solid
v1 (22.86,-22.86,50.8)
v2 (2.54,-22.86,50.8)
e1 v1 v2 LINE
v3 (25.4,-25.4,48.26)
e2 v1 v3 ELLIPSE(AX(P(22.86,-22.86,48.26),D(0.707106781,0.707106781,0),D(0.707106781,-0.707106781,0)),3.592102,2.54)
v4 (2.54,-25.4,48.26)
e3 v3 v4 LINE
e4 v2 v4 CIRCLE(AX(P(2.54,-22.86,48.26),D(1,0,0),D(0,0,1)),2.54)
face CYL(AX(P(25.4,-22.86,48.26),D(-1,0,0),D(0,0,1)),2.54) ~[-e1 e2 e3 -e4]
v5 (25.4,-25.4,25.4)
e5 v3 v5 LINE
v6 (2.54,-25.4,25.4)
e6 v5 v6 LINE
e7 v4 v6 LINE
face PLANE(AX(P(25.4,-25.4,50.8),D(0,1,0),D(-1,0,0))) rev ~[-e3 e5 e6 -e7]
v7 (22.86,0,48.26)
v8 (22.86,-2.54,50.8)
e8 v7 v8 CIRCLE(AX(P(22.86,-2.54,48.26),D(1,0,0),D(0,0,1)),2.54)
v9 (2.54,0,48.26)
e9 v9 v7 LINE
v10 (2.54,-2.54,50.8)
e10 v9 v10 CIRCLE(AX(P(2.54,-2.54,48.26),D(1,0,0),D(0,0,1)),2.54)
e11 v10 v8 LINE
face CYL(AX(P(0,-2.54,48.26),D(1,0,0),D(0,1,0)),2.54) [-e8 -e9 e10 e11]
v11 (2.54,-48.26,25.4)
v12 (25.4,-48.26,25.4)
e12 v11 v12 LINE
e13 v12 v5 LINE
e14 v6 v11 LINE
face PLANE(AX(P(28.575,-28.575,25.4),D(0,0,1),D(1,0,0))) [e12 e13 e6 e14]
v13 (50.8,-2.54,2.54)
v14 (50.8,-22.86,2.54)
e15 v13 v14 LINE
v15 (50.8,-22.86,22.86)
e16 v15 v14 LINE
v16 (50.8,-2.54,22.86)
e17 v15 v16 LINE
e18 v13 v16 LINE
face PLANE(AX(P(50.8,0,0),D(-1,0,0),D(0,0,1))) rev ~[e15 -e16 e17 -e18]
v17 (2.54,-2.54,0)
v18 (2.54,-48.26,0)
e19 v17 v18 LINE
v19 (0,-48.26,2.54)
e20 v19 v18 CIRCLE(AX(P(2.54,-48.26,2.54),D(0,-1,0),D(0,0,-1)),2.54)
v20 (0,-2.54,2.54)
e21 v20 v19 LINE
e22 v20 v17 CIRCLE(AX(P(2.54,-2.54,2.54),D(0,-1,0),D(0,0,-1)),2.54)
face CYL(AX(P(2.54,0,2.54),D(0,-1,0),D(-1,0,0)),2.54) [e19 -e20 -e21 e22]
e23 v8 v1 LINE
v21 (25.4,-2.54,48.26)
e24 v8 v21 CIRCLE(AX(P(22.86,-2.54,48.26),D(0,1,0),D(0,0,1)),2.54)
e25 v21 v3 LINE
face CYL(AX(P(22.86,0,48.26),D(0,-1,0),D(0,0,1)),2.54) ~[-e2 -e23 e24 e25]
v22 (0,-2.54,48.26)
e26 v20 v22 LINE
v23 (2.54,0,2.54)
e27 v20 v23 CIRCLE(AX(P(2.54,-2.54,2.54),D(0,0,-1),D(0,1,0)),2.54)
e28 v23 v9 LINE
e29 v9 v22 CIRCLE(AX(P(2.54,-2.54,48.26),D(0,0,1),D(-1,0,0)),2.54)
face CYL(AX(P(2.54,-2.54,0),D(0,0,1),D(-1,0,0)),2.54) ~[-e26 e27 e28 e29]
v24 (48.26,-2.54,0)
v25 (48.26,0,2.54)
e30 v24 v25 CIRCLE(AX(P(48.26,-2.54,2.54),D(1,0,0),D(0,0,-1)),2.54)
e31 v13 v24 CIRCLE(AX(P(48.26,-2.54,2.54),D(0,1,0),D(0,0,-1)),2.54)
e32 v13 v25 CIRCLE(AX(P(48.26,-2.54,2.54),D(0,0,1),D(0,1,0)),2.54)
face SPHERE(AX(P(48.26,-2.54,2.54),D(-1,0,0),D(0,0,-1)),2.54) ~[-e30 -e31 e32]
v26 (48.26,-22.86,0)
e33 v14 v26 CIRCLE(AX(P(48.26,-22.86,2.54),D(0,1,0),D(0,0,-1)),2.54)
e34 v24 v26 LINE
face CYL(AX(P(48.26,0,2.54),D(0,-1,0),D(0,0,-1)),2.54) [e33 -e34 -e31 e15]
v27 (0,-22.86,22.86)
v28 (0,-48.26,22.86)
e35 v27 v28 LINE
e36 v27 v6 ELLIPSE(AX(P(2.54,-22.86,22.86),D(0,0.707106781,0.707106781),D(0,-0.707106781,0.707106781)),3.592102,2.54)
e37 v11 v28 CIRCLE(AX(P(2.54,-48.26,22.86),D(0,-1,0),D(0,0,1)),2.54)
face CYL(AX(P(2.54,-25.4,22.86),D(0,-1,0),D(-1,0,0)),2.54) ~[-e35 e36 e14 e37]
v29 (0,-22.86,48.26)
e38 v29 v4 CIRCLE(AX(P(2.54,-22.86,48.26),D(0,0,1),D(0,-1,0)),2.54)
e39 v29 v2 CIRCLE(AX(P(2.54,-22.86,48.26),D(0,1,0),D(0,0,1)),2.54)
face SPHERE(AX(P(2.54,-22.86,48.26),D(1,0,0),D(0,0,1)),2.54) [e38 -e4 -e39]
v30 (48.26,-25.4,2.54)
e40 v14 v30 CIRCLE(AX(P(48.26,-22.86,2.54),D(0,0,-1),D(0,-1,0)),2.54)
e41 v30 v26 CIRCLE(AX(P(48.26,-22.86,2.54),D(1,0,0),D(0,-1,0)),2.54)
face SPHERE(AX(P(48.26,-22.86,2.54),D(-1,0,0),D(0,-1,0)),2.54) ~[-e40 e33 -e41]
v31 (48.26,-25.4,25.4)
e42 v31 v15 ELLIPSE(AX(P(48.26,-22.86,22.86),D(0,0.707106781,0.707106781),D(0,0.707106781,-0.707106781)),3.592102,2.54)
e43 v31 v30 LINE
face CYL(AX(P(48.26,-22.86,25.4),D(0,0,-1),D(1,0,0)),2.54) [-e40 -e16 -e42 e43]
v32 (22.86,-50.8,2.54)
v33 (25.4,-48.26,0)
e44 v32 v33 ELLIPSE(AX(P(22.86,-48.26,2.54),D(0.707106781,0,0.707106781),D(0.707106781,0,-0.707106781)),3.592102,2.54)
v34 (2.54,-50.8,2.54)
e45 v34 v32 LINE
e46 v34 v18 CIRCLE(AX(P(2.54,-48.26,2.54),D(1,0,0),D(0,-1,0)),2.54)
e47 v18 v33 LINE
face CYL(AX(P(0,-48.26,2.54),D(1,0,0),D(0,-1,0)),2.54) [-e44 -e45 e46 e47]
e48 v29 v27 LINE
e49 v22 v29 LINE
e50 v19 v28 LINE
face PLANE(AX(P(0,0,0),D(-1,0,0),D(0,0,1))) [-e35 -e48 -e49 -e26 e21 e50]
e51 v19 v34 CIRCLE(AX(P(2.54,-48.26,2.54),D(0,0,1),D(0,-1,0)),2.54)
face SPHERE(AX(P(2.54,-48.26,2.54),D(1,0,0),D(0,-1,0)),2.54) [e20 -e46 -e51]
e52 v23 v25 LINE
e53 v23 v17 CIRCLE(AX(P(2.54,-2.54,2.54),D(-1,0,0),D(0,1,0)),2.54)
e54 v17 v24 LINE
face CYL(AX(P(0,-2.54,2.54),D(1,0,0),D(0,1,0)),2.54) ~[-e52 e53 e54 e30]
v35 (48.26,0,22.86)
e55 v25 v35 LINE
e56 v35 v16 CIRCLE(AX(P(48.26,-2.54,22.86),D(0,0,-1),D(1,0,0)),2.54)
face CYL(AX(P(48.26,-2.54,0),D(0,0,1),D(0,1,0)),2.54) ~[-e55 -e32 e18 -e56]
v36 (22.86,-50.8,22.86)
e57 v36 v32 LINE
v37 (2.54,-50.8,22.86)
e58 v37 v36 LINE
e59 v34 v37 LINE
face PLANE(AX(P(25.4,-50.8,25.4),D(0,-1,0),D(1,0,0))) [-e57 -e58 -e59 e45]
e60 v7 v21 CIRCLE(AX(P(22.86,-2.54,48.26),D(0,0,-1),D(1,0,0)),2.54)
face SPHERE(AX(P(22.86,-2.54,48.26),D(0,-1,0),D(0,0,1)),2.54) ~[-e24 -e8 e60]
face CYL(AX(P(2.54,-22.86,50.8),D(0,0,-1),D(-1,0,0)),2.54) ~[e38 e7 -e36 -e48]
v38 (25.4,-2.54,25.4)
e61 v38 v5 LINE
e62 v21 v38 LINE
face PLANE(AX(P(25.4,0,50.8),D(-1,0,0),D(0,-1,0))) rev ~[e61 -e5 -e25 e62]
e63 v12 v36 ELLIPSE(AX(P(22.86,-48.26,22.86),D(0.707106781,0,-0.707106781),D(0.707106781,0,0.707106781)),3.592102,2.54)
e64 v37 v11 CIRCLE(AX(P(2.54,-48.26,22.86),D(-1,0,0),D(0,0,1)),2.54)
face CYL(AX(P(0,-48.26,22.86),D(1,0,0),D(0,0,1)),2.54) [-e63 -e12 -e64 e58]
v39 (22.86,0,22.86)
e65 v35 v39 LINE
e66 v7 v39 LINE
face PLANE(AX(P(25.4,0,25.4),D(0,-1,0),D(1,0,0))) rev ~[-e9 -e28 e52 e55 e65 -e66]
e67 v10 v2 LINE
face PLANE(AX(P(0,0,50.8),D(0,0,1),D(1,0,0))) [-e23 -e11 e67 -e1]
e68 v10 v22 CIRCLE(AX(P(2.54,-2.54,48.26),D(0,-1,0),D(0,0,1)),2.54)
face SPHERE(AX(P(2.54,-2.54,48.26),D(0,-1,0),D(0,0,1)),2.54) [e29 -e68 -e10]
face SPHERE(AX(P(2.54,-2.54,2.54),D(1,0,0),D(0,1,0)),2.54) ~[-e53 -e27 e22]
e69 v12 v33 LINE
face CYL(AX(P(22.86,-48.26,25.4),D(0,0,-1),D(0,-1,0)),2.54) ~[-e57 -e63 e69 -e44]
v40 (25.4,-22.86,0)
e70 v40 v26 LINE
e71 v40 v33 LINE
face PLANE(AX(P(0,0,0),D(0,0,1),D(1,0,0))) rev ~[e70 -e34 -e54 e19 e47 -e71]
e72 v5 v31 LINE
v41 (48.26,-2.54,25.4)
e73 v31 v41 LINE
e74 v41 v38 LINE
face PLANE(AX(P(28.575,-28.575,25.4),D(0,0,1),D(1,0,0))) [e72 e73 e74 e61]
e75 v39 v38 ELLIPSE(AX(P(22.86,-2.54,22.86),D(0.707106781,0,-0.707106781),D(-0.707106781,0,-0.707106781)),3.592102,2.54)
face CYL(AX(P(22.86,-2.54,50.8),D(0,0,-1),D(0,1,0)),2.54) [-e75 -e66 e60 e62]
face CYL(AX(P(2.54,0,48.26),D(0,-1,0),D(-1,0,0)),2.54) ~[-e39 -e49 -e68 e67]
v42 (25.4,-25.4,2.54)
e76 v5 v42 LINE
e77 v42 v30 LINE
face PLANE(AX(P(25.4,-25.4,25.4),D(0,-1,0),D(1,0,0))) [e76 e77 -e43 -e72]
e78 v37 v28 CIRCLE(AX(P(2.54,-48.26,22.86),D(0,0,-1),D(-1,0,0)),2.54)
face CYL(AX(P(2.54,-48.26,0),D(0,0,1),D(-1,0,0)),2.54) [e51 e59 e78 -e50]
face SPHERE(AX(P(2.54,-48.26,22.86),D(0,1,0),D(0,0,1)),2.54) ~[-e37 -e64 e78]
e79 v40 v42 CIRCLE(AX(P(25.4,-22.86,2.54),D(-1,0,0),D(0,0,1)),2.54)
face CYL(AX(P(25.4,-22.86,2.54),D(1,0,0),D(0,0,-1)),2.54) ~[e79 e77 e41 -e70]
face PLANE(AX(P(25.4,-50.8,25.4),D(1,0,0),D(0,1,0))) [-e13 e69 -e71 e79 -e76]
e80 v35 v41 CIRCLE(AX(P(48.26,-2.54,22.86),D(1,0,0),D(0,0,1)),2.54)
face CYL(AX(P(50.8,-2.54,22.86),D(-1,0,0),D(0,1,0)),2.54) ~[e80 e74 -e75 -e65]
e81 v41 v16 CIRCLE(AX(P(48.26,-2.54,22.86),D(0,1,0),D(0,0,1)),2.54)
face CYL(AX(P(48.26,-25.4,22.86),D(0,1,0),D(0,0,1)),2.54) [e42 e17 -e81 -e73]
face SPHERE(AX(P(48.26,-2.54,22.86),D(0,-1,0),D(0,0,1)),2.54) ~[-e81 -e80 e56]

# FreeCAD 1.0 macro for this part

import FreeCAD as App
import Part
import Sketcher
from FreeCAD import Vector
Q = App.Units.Quantity


def edges_at(feature, points):
    """Names of the edges that pass closest to the given points."""
    edges = feature.Shape.Edges
    near = lambda p: min(range(len(edges)), key=lambda i: edges[i].distToShape(Part.Vertex(*p))[0])
    return sorted({f"Edge{near(p) + 1}" for p in points})


def add_polygon(sketch, points):
    """Adds a closed chain of lines whose ends are joined by coincident constraints."""
    first, n = sketch.GeometryCount, len(points)
    for a, b in zip(points, points[1:] + points[:1]):
        sketch.addGeometry(Part.LineSegment(App.Vector(*a, 0), App.Vector(*b, 0)), False)
    for i in range(n):
        sketch.addConstraint(Sketcher.Constraint("Coincident", first + i, 2, first + (i + 1) % n, 1))

doc = App.newDocument("Part")
params = doc.addObject("Spreadsheet::Sheet", "Params")
for row, (alias, value) in enumerate([
    ("sketch1_width", "2 in"),
    ("pad1_length", "2 in"),
    ("sketch2_width", "1 in"),
    ("pocket1_length", "1 in"),
    ("sketch3_width", "1 in"),
    ("pocket2_length", "1 in"),
    ("fillet_radius", "0.1 in"),
], start=1):
    params.set(f"A{row}", alias)
    params.set(f"B{row}", "=" + value)
    params.setAlias(f"B{row}", alias)

body = doc.addObject("PartDesign::Body", "Body")

# Sketch on XZ plane
sketch1 = doc.addObject("Sketcher::SketchObject", "Sketch")
body.addObject(sketch1)
sketch1.AttachmentSupport = (doc.XZ_Plane, [""])
sketch1.MapMode = "FlatFace"
add_polygon(sketch1, [(0, 51), (0, 0), (51, 0), (51, 51)])  # lines 0-3
sketch1.addConstraint(Sketcher.Constraint("Vertical", 0))
sketch1.addConstraint(Sketcher.Constraint("Horizontal", 1))
sketch1.addConstraint(Sketcher.Constraint("Vertical", 2))
sketch1.addConstraint(Sketcher.Constraint("Horizontal", 3))
sketch1.addConstraint(Sketcher.Constraint("Coincident", 0, 2, -1, 1))
sketch1.addConstraint(Sketcher.Constraint("Equal", 3, 0))
sketch1.addConstraint(Sketcher.Constraint("DistanceX", 1, 1, 1, 2, Q("2 in")))
sketch1.setExpression("Constraints[10]", "Params.sketch1_width")
pad1 = doc.addObject("PartDesign::Pad", "Pad")
body.addObject(pad1)
pad1.Profile = sketch1
pad1.setExpression("Length", "Params.pad1_length")

# Sketch on XY plane
sketch2 = doc.addObject("Sketcher::SketchObject", "Sketch001")
body.addObject(sketch2)
sketch2.AttachmentSupport = (doc.XY_Plane, [""])
sketch2.MapMode = "FlatFace"
sketch2.AttachmentOffset = App.Placement(Vector(0, 0, 2 * 25.4), App.Rotation())
add_polygon(sketch2, [(51, 0), (25, 0), (25, -25), (0, -25), (0, -51), (51, -51)])  # lines 0-5
sketch2.addConstraint(Sketcher.Constraint("Horizontal", 0))
sketch2.addConstraint(Sketcher.Constraint("Vertical", 1))
sketch2.addConstraint(Sketcher.Constraint("Horizontal", 2))
sketch2.addConstraint(Sketcher.Constraint("Vertical", 3))
sketch2.addConstraint(Sketcher.Constraint("Horizontal", 4))
sketch2.addConstraint(Sketcher.Constraint("Vertical", 5))
sketch2.addConstraint(Sketcher.Constraint("PointOnObject", 0, 2, -1))
sketch2.addConstraint(Sketcher.Constraint("PointOnObject", 2, 2, -2))
sketch2.addConstraint(Sketcher.Constraint("Equal", 0, 2))
sketch2.addConstraint(Sketcher.Constraint("Equal", 2, 1))
sketch2.addConstraint(Sketcher.Constraint("Equal", 1, 3))
sketch2.addConstraint(Sketcher.Constraint("DistanceX", 0, 2, 0, 1, Q("1 in")))
sketch2.setExpression("Constraints[17]", "Params.sketch2_width")
pocket1 = doc.addObject("PartDesign::Pocket", "Pocket")
body.addObject(pocket1)
pocket1.Profile = sketch2
pocket1.setExpression("Length", "Params.pocket1_length")

# Sketch on XY plane
sketch3 = doc.addObject("Sketcher::SketchObject", "Sketch002")
body.addObject(sketch3)
sketch3.AttachmentSupport = (doc.XY_Plane, [""])
sketch3.MapMode = "FlatFace"
sketch3.AttachmentOffset = App.Placement(Vector(0, 0, 1 * 25.4), App.Rotation())
add_polygon(sketch3, [(25, -25), (25, -51), (51, -51), (51, -25)])  # lines 0-3
sketch3.addConstraint(Sketcher.Constraint("Vertical", 0))
sketch3.addConstraint(Sketcher.Constraint("Horizontal", 1))
sketch3.addConstraint(Sketcher.Constraint("Vertical", 2))
sketch3.addConstraint(Sketcher.Constraint("Horizontal", 3))
sketch3.addConstraint(Sketcher.Constraint("Equal", 3, 0))
sketch3.addConstraint(Sketcher.Constraint("DistanceX", 1, 1, 1, 2, Q("1 in")))
sketch3.addConstraint(Sketcher.Constraint("DistanceX", -1, 1, 0, 2, Q("1 in")))
sketch3.addConstraint(Sketcher.Constraint("DistanceY", 0, 2, -1, 1, Q("2 in")))
sketch3.setExpression("Constraints[9]", "Params.sketch3_width")
pocket2 = doc.addObject("PartDesign::Pocket", "Pocket001")
body.addObject(pocket2)
pocket2.Profile = sketch3
pocket2.setExpression("Length", "Params.pocket2_length")
doc.recompute()

fillet = doc.addObject("PartDesign::Fillet", "Fillet")
body.addObject(fillet)
fillet.Base = (pocket2, edges_at(pocket2, [
    (50.8, -12.7, 25.4),
    (0, -38.1, 25.4),
    (25.4, -12.7, 50.8),
    (12.7, -25.4, 50.8),
    (0, -12.7, 50.8),
    (12.7, 0, 50.8),
    (38.1, 0, 25.4),
    (25.4, 0, 38.1),
    (12.7, -50.8, 25.4),
    (12.7, -50.8, 0),
    (38.1, -25.4, 0),
    (50.8, -25.4, 12.7),
    (25.4, -50.8, 12.7),
    (0, -50.8, 12.7),
    (25.4, 0, 0),
    (50.8, -12.7, 0),
    (0, 0, 25.4),
    (0, -25.4, 0),
    (50.8, 0, 12.7),
    (0, -25.4, 38.1),
]))
fillet.setExpression("Radius", "Params.fillet_radius")

doc.recompute()
